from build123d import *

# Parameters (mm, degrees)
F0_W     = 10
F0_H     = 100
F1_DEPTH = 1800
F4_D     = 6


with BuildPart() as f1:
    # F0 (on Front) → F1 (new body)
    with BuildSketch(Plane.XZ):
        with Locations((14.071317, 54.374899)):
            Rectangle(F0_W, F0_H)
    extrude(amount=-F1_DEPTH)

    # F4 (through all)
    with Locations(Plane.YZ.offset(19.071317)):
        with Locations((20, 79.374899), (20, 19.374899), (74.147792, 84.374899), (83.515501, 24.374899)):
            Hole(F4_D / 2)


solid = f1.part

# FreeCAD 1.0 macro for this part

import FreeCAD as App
import Part
import Sketcher
from FreeCAD import Vector
Q = App.Units.Quantity

doc = App.newDocument("Part")
params = doc.addObject("Spreadsheet::Sheet", "Params")
for row, (alias, value) in enumerate([
    ("sketch1_width", "10 mm"),
    ("sketch1_height", "100 mm"),
    ("pad1_length", "1800 mm"),
    ("sketch2_diameter", "6 mm"),
    ("hole_diameter", "6 mm"),
], start=1):
    params.set(f"A{row}", alias)
    params.set(f"B{row}", "=" + value)
    params.setAlias(f"B{row}", alias)

body = doc.addObject("PartDesign::Body", "Body")

sketch1 = doc.addObject("Sketcher::SketchObject", "Sketch")
body.addObject(sketch1)
sketch1.AttachmentSupport = (doc.XZ_Plane, [""])
sketch1.MapMode = "FlatFace"
sketch1.addGeometry(Part.LineSegment(Vector(9.071317, 104.374899, 0), Vector(9.071317, 4.374899, 0)), False)
sketch1.addGeometry(Part.LineSegment(Vector(9.071317, 4.374899, 0), Vector(19.071317, 4.374899, 0)), False)
sketch1.addGeometry(Part.LineSegment(Vector(19.071317, 4.374899, 0), Vector(19.071317, 104.374899, 0)), False)
sketch1.addGeometry(Part.LineSegment(Vector(19.071317, 104.374899, 0), Vector(9.071317, 104.374899, 0)), False)
sketch1.addConstraint(Sketcher.Constraint("Coincident", 0, 2, 1, 1))
sketch1.addConstraint(Sketcher.Constraint("Coincident", 1, 2, 2, 1))
sketch1.addConstraint(Sketcher.Constraint("Coincident", 2, 2, 3, 1))
sketch1.addConstraint(Sketcher.Constraint("Coincident", 3, 2, 0, 1))
sketch1.addConstraint(Sketcher.Constraint("Vertical", 0))
sketch1.addConstraint(Sketcher.Constraint("Horizontal", 1))
sketch1.addConstraint(Sketcher.Constraint("Vertical", 2))
sketch1.addConstraint(Sketcher.Constraint("Horizontal", 3))
sketch1.addConstraint(Sketcher.Constraint("DistanceX", 1, 1, 1, 2, Q("10 mm")))
sketch1.addConstraint(Sketcher.Constraint("DistanceY", 0, 2, 0, 1, Q("100 mm")))
sketch1.addConstraint(Sketcher.Constraint("DistanceY", -1, 1, 0, 2, Q("4.374899 mm")))
sketch1.addConstraint(Sketcher.Constraint("DistanceX", -1, 1, 0, 2, Q("9.071317 mm")))
sketch1.setExpression("Constraints[8]", "Params.sketch1_width")
sketch1.setExpression("Constraints[9]", "Params.sketch1_height")
pad1 = doc.addObject("PartDesign::Pad", "Pad")
body.addObject(pad1)
pad1.Profile = sketch1
pad1.setExpression("Length", "Params.pad1_length")
pad1.Reversed = True

sketch2 = doc.addObject("Sketcher::SketchObject", "Sketch001")
body.addObject(sketch2)
sketch2.AttachmentSupport = (doc.YZ_Plane, [""])
sketch2.MapMode = "FlatFace"
sketch2.AttachmentOffset = App.Placement(Vector(0, 0, 19.071317), App.Rotation())
sketch2.addGeometry(Part.Circle(Vector(20, 79.374899, 0), Vector(0, 0, 1), 3), False)
sketch2.addGeometry(Part.Circle(Vector(20, 19.374899, 0), Vector(0, 0, 1), 3), False)
sketch2.addGeometry(Part.Circle(Vector(74.147792, 84.374899, 0), Vector(0, 0, 1), 3), False)
sketch2.addGeometry(Part.Circle(Vector(83.515501, 24.374899, 0), Vector(0, 0, 1), 3), False)
sketch2.addConstraint(Sketcher.Constraint("Equal", 0, 1))
sketch2.addConstraint(Sketcher.Constraint("Equal", 1, 2))
sketch2.addConstraint(Sketcher.Constraint("Equal", 2, 3))
sketch2.addConstraint(Sketcher.Constraint("Vertical", 0, 3, 1, 3))
sketch2.addConstraint(Sketcher.Constraint("Diameter", 0, Q("6 mm")))
sketch2.addConstraint(Sketcher.Constraint("DistanceX", -1, 1, 0, 3, Q("20 mm")))
sketch2.addConstraint(Sketcher.Constraint("DistanceY", 1, 3, 0, 3, Q("60 mm")))
sketch2.addConstraint(Sketcher.Constraint("DistanceY", 0, 3, 2, 3, Q("5 mm")))
sketch2.addConstraint(Sketcher.Constraint("DistanceY", 3, 3, 2, 3, Q("60 mm")))
sketch2.addConstraint(Sketcher.Constraint("DistanceY", -1, 1, 0, 3, Q("79.374899 mm")))
sketch2.addConstraint(Sketcher.Constraint("DistanceX", -1, 1, 3, 3, Q("83.515501 mm")))
sketch2.addConstraint(Sketcher.Constraint("DistanceX", -1, 1, 2, 3, Q("74.147792 mm")))
sketch2.setExpression("Constraints[4]", "Params.sketch2_diameter")
doc.recompute()
hole = doc.addObject("PartDesign::Hole", "Hole")
body.addObject(hole)
hole.Profile = sketch2
hole.ThreadType = "None"
hole.setExpression("Diameter", "Params.hole_diameter")
hole.DepthType = "ThroughAll"

doc.recompute()
